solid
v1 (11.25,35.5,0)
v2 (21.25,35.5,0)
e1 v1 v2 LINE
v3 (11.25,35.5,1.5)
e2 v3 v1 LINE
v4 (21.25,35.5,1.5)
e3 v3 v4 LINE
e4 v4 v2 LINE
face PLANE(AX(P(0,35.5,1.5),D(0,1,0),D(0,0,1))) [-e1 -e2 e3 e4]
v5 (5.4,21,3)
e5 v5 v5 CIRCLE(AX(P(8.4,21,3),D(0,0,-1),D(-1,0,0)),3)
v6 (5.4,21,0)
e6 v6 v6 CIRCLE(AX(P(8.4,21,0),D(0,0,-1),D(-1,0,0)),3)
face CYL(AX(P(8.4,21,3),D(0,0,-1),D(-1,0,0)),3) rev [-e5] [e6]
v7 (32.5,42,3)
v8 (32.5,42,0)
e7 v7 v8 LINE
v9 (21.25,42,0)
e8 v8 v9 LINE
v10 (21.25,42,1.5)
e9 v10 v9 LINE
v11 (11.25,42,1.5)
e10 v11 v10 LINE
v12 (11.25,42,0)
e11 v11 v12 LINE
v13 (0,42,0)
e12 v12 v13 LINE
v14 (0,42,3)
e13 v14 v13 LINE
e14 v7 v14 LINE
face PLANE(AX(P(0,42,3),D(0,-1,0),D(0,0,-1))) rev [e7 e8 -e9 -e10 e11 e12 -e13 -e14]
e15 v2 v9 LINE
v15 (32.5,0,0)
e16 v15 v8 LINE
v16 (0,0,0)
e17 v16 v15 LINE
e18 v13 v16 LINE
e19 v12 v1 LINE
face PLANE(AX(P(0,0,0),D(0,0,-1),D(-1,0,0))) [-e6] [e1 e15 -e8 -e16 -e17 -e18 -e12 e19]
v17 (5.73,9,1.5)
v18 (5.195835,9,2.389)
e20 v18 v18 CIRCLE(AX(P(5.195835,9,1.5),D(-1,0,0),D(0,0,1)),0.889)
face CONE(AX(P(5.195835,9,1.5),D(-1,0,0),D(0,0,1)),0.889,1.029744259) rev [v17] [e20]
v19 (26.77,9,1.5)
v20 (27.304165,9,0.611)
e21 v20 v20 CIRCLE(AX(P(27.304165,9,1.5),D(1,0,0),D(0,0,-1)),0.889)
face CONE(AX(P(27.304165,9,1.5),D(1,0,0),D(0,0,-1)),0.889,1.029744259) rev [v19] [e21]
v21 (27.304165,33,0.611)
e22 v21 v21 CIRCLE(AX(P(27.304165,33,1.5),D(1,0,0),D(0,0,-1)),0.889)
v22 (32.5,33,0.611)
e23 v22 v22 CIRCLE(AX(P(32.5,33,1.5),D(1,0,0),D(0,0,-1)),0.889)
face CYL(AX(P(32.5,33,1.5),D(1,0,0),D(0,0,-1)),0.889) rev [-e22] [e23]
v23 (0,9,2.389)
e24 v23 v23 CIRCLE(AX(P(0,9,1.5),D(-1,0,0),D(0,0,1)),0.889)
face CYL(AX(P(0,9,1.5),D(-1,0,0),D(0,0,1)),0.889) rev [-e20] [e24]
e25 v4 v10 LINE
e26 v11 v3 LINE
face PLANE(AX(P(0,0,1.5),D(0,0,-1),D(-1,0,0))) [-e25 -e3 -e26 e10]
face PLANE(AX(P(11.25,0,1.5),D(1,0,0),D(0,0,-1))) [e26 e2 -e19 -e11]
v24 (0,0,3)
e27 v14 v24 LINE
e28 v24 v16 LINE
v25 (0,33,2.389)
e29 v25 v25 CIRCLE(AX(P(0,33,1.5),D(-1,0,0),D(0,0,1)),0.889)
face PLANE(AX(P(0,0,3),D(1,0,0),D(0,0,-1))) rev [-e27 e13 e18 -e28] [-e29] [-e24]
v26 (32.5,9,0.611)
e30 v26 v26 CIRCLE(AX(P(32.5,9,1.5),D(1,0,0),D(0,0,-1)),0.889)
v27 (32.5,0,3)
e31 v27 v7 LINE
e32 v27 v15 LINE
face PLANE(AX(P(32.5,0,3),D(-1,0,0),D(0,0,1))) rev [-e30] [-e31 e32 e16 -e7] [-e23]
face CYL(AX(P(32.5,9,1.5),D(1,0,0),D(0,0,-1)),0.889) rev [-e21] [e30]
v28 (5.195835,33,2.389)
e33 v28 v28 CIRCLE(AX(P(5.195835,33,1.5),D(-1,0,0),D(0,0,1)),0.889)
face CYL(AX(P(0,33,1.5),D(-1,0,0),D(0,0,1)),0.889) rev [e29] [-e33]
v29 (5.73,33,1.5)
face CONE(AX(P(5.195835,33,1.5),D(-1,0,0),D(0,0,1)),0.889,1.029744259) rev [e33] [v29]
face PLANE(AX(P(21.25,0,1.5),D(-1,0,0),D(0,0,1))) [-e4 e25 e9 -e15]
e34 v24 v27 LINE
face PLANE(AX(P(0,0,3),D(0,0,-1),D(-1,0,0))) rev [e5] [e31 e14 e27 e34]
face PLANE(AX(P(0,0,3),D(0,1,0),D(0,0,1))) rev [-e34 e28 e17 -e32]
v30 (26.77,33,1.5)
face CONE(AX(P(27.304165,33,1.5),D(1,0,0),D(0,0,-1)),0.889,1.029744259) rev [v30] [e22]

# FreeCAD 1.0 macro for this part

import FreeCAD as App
import Part
import Sketcher
from FreeCAD import Vector
Q = App.Units.Quantity

doc = App.newDocument("Part")
params = doc.addObject("Spreadsheet::Sheet", "Params")
for row, (alias, value) in enumerate([
    ("sketch1_height", "42 mm"),
    ("sketch1_width", "32.5 mm"),
    ("pad1_length", "3 mm"),
    ("hole_diameter", "1.778 mm"),
    ("hole_depth", "5.195835 mm"),
    ("hole2_diameter", "1.778 mm"),
    ("hole2_depth", "5.195835 mm"),
    ("sketch4_diameter", "6 mm"),
    ("pocket1_length", "3 mm"),
    ("sketch5_width", "10 mm"),
    ("sketch5_height", "6.5 mm"),
    ("pocket2_length", "1.5 mm"),
], start=1):
    params.set(f"A{row}", alias)
    params.set(f"B{row}", "=" + value)
    params.setAlias(f"B{row}", alias)

body = doc.addObject("PartDesign::Body", "Body")

# Sketch on XY plane
sketch1 = body.newObject("Sketcher::SketchObject", "Sketch")
sketch1.AttachmentSupport = (doc.getObject("XY_Plane"), [""])
sketch1.MapMode = "FlatFace"
sketch1.addGeometry(Part.LineSegment(Vector(0, 42, 0), Vector(0, 0, 0)), False)
sketch1.addGeometry(Part.LineSegment(Vector(0, 0, 0), Vector(32, 0, 0)), False)
sketch1.addGeometry(Part.LineSegment(Vector(32, 0, 0), Vector(32, 42, 0)), False)
sketch1.addGeometry(Part.LineSegment(Vector(32, 42, 0), Vector(0, 42, 0)), False)
sketch1.addConstraint(Sketcher.Constraint("Coincident", 0, 2, 1, 1))
sketch1.addConstraint(Sketcher.Constraint("Coincident", 1, 2, 2, 1))
sketch1.addConstraint(Sketcher.Constraint("Coincident", 2, 2, 3, 1))
sketch1.addConstraint(Sketcher.Constraint("Coincident", 3, 2, 0, 1))
sketch1.addConstraint(Sketcher.Constraint("Vertical", 0))
sketch1.addConstraint(Sketcher.Constraint("Horizontal", 1))
sketch1.addConstraint(Sketcher.Constraint("Vertical", 2))
sketch1.addConstraint(Sketcher.Constraint("Horizontal", 3))
sketch1.addConstraint(Sketcher.Constraint("Coincident", 0, 2, -1, 1))
sketch1.addConstraint(Sketcher.Constraint("DistanceY", 0, 2, 0, 1, Q("42 mm")))
sketch1.addConstraint(Sketcher.Constraint("DistanceX", 1, 1, 1, 2, Q("32.5 mm")))
sketch1.setExpression("Constraints[9]", "Params.sketch1_height")
sketch1.setExpression("Constraints[10]", "Params.sketch1_width")
pad1 = body.newObject("PartDesign::Pad", "Pad")
pad1.Profile = sketch1
pad1.setExpression("Length", "Params.pad1_length")

# Sketch on YZ plane
sketch2 = body.newObject("Sketcher::SketchObject", "Sketch001")
sketch2.AttachmentSupport = (doc.getObject("YZ_Plane"), [""])
sketch2.MapMode = "FlatFace"
sketch2.addGeometry(Part.Circle(Vector(33, 1.5, 0), Vector(0, 0, 1), 0.9), False)
sketch2.addGeometry(Part.Circle(Vector(9, 1.5, 0), Vector(0, 0, 1), 0.9), False)
sketch2.addConstraint(Sketcher.Constraint("Equal", 0, 1))
sketch2.addConstraint(Sketcher.Constraint("Horizontal", 0, 3, 1, 3))
sketch2.addConstraint(Sketcher.Constraint("Diameter", 0, Q("1.778 mm")))
sketch2.addConstraint(Sketcher.Constraint("DistanceX", -1, 1, 0, 3, Q("33 mm")))
sketch2.addConstraint(Sketcher.Constraint("DistanceX", -1, 1, 1, 3, Q("9 mm")))
sketch2.addConstraint(Sketcher.Constraint("DistanceY", -1, 1, 0, 3, Q("1.5 mm")))
doc.recompute()
hole = body.newObject("PartDesign::Hole", "Hole")
hole.Profile = sketch2
hole.ThreadType = "None"
hole.setExpression("Diameter", "Params.hole_diameter")
hole.DepthType = "Dimension"
hole.setExpression("Depth", "Params.hole_depth")
hole.DrillPoint = "Angled"
hole.DrillPointAngle = 118
hole.Reversed = True

# Sketch on YZ plane
sketch3 = body.newObject("Sketcher::SketchObject", "Sketch002")
sketch3.AttachmentSupport = (doc.getObject("YZ_Plane"), [""])
sketch3.MapMode = "FlatFace"
sketch3.AttachmentOffset = App.Placement(Vector(0, 0, 32.5), App.Rotation())
sketch3.addGeometry(Part.Circle(Vector(33, 1.5, 0), Vector(0, 0, 1), 0.9), False)
sketch3.addGeometry(Part.Circle(Vector(9, 1.5, 0), Vector(0, 0, 1), 0.9), False)
sketch3.addConstraint(Sketcher.Constraint("Equal", 0, 1))
sketch3.addConstraint(Sketcher.Constraint("Horizontal", 0, 3, 1, 3))
sketch3.addConstraint(Sketcher.Constraint("Diameter", 0, Q("1.778 mm")))
sketch3.addConstraint(Sketcher.Constraint("DistanceX", -1, 1, 0, 3, Q("33 mm")))
sketch3.addConstraint(Sketcher.Constraint("DistanceX", -1, 1, 1, 3, Q("9 mm")))
sketch3.addConstraint(Sketcher.Constraint("DistanceY", -1, 1, 0, 3, Q("1.5 mm")))
doc.recompute()
hole2 = body.newObject("PartDesign::Hole", "Hole001")
hole2.Profile = sketch3
hole2.ThreadType = "None"
hole2.setExpression("Diameter", "Params.hole2_diameter")
hole2.DepthType = "Dimension"
hole2.setExpression("Depth", "Params.hole2_depth")
hole2.DrillPoint = "Angled"
hole2.DrillPointAngle = 118

# Sketch on XY plane
sketch4 = body.newObject("Sketcher::SketchObject", "Sketch003")
sketch4.AttachmentSupport = (doc.getObject("XY_Plane"), [""])
sketch4.MapMode = "FlatFace"
sketch4.addGeometry(Part.Circle(Vector(8.4, 21, 0), Vector(0, 0, 1), 3), False)
sketch4.addConstraint(Sketcher.Constraint("Diameter", 0, Q("6 mm")))
sketch4.addConstraint(Sketcher.Constraint("DistanceY", -1, 1, 0, 3, Q("21 mm")))
sketch4.addConstraint(Sketcher.Constraint("DistanceX", -1, 1, 0, 3, Q("8.4 mm")))
sketch4.setExpression("Constraints[0]", "Params.sketch4_diameter")
pocket1 = body.newObject("PartDesign::Pocket", "Pocket")
pocket1.Profile = sketch4
pocket1.setExpression("Length", "Params.pocket1_length")
pocket1.Reversed = True

# Sketch on XY plane
sketch5 = body.newObject("Sketcher::SketchObject", "Sketch004")
sketch5.AttachmentSupport = (doc.getObject("XY_Plane"), [""])
sketch5.MapMode = "FlatFace"
sketch5.addGeometry(Part.LineSegment(Vector(21, 42, 0), Vector(21, 36, 0)), False)
sketch5.addGeometry(Part.LineSegment(Vector(21, 36, 0), Vector(11, 36, 0)), False)
sketch5.addGeometry(Part.LineSegment(Vector(11, 36, 0), Vector(11, 42, 0)), False)
sketch5.addGeometry(Part.LineSegment(Vector(11, 42, 0), Vector(21, 42, 0)), False)
sketch5.addConstraint(Sketcher.Constraint("Coincident", 0, 2, 1, 1))
sketch5.addConstraint(Sketcher.Constraint("Coincident", 1, 2, 2, 1))
sketch5.addConstraint(Sketcher.Constraint("Coincident", 2, 2, 3, 1))
sketch5.addConstraint(Sketcher.Constraint("Coincident", 3, 2, 0, 1))
sketch5.addConstraint(Sketcher.Constraint("Vertical", 0))
sketch5.addConstraint(Sketcher.Constraint("Horizontal", 1))
sketch5.addConstraint(Sketcher.Constraint("Vertical", 2))
sketch5.addConstraint(Sketcher.Constraint("Horizontal", 3))
sketch5.addConstraint(Sketcher.Constraint("DistanceX", 1, 2, 1, 1, Q("10 mm")))
sketch5.addConstraint(Sketcher.Constraint("DistanceY", 0, 2, 0, 1, Q("6.5 mm")))
sketch5.addConstraint(Sketcher.Constraint("DistanceY", -1, 1, 2, 2, Q("42 mm")))
sketch5.addConstraint(Sketcher.Constraint("DistanceX", -1, 1, 0, 2, Q("21.25 mm")))
sketch5.setExpression("Constraints[8]", "Params.sketch5_width")
sketch5.setExpression("Constraints[9]", "Params.sketch5_height")
pocket2 = body.newObject("PartDesign::Pocket", "Pocket001")
pocket2.Profile = sketch5
pocket2.setExpression("Length", "Params.pocket2_length")
pocket2.Reversed = True

doc.recompute()
